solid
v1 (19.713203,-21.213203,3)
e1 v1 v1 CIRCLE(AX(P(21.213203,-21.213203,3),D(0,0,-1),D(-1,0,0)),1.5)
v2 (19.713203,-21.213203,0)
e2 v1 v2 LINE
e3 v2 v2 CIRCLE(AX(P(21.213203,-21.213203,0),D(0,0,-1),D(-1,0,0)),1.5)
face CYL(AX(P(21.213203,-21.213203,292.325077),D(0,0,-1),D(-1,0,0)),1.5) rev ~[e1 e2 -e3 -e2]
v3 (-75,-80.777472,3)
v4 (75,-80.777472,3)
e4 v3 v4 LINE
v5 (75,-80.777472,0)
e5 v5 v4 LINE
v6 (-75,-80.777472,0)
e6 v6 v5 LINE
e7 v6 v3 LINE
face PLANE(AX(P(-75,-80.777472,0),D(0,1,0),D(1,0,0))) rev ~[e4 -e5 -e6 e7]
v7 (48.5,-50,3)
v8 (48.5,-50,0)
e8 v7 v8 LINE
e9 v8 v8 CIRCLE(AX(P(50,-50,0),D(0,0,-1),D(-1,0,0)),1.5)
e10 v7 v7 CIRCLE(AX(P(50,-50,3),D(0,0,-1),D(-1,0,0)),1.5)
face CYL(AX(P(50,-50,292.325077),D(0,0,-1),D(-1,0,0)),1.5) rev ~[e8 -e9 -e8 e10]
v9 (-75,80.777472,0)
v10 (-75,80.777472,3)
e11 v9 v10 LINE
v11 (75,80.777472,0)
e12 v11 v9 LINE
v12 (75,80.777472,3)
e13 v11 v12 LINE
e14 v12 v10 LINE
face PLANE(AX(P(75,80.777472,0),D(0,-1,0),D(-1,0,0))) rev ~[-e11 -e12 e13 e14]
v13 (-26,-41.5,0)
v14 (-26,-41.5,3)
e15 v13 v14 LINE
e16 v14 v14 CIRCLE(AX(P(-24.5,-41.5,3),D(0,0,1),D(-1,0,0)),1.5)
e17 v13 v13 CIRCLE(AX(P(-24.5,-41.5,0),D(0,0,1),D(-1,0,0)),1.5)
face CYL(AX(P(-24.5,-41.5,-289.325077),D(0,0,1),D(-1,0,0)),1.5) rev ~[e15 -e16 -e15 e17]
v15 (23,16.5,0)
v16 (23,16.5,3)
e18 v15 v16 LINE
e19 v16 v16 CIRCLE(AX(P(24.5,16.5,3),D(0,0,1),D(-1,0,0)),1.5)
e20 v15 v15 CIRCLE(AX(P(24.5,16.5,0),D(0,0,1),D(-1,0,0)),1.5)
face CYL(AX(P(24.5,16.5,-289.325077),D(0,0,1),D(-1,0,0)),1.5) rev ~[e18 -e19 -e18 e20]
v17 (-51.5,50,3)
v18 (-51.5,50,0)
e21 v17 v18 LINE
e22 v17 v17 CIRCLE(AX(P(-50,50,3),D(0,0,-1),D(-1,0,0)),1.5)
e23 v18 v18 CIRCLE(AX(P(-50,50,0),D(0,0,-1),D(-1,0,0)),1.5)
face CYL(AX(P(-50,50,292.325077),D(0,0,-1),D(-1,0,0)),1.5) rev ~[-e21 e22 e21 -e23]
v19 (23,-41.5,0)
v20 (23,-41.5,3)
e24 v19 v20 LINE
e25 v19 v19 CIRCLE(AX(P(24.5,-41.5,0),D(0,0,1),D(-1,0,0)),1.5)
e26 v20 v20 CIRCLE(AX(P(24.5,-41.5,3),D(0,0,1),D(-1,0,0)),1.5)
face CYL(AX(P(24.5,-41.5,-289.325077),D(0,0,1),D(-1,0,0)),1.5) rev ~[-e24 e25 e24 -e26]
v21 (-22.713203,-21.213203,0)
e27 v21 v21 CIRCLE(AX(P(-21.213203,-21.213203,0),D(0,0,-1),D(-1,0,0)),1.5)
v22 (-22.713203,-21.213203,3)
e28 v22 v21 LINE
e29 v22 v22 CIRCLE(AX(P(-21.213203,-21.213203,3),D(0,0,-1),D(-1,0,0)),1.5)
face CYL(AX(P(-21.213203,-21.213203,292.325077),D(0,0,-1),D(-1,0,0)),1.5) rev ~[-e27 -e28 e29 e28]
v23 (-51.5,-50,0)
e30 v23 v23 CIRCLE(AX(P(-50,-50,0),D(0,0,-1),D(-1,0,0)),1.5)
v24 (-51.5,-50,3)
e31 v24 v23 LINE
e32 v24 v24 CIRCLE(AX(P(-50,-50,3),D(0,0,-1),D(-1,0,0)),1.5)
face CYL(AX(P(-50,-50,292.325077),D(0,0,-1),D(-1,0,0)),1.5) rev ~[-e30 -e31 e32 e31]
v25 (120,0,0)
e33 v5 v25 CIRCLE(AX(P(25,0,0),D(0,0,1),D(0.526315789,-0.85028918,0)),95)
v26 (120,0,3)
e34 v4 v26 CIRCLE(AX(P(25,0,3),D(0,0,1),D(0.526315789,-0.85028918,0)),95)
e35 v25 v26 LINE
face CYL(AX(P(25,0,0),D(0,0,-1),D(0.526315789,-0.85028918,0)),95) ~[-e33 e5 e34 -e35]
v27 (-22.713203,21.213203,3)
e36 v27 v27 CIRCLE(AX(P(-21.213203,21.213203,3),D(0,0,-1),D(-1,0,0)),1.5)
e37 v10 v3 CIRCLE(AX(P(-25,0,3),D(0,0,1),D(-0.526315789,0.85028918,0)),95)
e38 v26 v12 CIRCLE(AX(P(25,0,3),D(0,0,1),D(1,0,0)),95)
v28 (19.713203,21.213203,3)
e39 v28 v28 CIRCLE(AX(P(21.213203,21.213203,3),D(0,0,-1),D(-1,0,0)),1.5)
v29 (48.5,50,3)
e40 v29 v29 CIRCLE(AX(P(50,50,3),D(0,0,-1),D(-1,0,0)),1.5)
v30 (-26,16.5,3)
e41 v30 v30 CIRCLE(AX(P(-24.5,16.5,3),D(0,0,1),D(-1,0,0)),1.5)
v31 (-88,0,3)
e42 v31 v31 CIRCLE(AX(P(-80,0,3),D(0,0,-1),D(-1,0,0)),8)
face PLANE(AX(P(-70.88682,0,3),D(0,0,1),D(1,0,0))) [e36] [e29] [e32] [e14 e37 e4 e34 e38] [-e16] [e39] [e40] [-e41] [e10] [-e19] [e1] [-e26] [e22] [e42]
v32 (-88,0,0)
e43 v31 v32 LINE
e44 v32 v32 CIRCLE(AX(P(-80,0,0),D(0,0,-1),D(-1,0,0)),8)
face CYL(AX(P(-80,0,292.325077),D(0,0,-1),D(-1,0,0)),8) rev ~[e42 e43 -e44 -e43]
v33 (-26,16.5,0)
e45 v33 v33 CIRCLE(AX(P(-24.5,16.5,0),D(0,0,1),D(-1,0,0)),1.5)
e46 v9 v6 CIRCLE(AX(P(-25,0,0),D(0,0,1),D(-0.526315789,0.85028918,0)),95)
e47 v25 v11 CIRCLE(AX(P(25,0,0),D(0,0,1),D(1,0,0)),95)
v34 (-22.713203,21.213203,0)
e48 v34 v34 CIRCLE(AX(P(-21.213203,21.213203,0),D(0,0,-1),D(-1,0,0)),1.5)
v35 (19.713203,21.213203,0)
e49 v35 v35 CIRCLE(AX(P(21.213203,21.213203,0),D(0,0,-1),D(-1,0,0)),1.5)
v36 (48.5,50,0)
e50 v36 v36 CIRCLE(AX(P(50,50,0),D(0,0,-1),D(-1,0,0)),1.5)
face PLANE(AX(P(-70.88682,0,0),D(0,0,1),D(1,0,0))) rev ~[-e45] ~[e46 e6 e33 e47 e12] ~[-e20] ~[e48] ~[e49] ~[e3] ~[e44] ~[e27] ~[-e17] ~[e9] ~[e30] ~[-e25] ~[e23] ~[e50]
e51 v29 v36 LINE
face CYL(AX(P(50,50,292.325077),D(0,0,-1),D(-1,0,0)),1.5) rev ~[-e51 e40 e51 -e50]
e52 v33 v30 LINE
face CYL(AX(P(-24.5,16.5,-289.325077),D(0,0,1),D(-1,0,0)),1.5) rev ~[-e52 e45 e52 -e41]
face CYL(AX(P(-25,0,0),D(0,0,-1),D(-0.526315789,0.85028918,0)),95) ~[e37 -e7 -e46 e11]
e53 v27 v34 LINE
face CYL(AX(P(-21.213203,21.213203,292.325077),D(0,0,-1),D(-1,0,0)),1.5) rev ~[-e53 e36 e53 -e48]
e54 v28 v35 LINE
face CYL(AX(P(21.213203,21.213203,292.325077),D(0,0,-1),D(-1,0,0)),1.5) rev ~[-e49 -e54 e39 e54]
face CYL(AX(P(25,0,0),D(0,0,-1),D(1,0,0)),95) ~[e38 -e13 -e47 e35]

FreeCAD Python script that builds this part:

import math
import FreeCAD as App
import Part
import Sketcher
Q = App.Units.Quantity

doc = App.newDocument("Part")
body = doc.addObject("PartDesign::Body", "Body")

# Sketch on XY plane
sketch1 = body.newObject("Sketcher::SketchObject", "Sketch")
sketch1.AttachmentSupport = (doc.getObject("XY_Plane"), [""])
sketch1.MapMode = "FlatFace"
sketch1.addGeometry([
    Part.ArcOfCircle(Part.Circle(App.Vector(-25, 0, 0), App.Vector(0, 0, 1), 95), math.radians(122), math.radians(238)),  # 0
    Part.LineSegment(App.Vector(-75, -81, 0), App.Vector(75, -81, 0)),  # 1
    Part.ArcOfCircle(Part.Circle(App.Vector(25, 0, 0), App.Vector(0, 0, 1), 95), math.radians(-58), math.radians(0)),  # 2
    Part.ArcOfCircle(Part.Circle(App.Vector(25, 0, 0), App.Vector(0, 0, 1), 95), math.radians(0), math.radians(58)),  # 3
    Part.LineSegment(App.Vector(75, 81, 0), App.Vector(-75, 81, 0)),  # 4
], False)
sketch1.addConstraint([
    Sketcher.Constraint("Coincident", 0, 2, 1, 1),
    Sketcher.Constraint("Coincident", 1, 2, 2, 1),
    Sketcher.Constraint("Tangent", 2, 2, 3, 1),
    Sketcher.Constraint("Coincident", 3, 2, 4, 1),
    Sketcher.Constraint("Coincident", 4, 2, 0, 1),
    Sketcher.Constraint("Horizontal", 1),
    Sketcher.Constraint("Horizontal", 4),
    Sketcher.Constraint("Equal", 0, 2),
    Sketcher.Constraint("Equal", 2, 3),
    Sketcher.Constraint("Symmetric", 0, 3, 2, 3, -1, 1),
    Sketcher.Constraint("Symmetric", 1, 2, 3, 2, -1),
    Sketcher.Constraint("PointOnObject", 2, 2, -1),
    Sketcher.Constraint("Radius", 0, Q("95 mm")),
    Sketcher.Constraint("DistanceX", 1, 1, 1, 2, Q("150 mm")),
    Sketcher.Constraint("DistanceX", 0, 3, -1, 1, Q("25 mm")),
])
pad1 = body.newObject("PartDesign::Pad", "Pad")
pad1.Profile = sketch1
pad1.Length = 3

# Sketch on XY plane
sketch2 = body.newObject("Sketcher::SketchObject", "Sketch001")
sketch2.AttachmentSupport = (doc.getObject("XY_Plane"), [""])
sketch2.MapMode = "FlatFace"
sketch2.AttachmentOffset = App.Placement(App.Vector(0, 0, 3), App.Rotation())
sketch2.addGeometry([
    Part.Circle(App.Vector(-50, 50, 0), App.Vector(0, 0, 1), 1.5),
    Part.Circle(App.Vector(50, 50, 0), App.Vector(0, 0, 1), 1.5),
    Part.Circle(App.Vector(50, -50, 0), App.Vector(0, 0, 1), 1.5),
    Part.Circle(App.Vector(-50, -50, 0), App.Vector(0, 0, 1), 1.5),
], False)
sketch2.addConstraint([
    Sketcher.Constraint("Equal", 0, 1),
    Sketcher.Constraint("Equal", 1, 2),
    Sketcher.Constraint("Equal", 2, 3),
    Sketcher.Constraint("Symmetric", 0, 3, 2, 3, -1, 1),
    Sketcher.Constraint("Symmetric", 1, 3, 3, 3, -1, 1),
    Sketcher.Constraint("Symmetric", 0, 3, 1, 3, -2),
    Sketcher.Constraint("Diameter", 0, Q("3 mm")),
    Sketcher.Constraint("DistanceX", 0, 3, -1, 1, Q("50 mm")),
    Sketcher.Constraint("DistanceY", -1, 1, 0, 3, Q("50 mm")),
])
doc.recompute()
hole = body.newObject("PartDesign::Hole", "Hole")
hole.Profile = sketch2
hole.ThreadType = "None"
hole.Diameter = 3
hole.DepthType = "ThroughAll"

# Sketch on XY plane
sketch3 = body.newObject("Sketcher::SketchObject", "Sketch002")
sketch3.AttachmentSupport = (doc.getObject("XY_Plane"), [""])
sketch3.MapMode = "FlatFace"
sketch3.AttachmentOffset = App.Placement(App.Vector(0, 0, 3), App.Rotation())
sketch3.addGeometry([
    Part.Circle(App.Vector(-21.2, 21.2, 0), App.Vector(0, 0, 1), 1.5),
    Part.Circle(App.Vector(21.2, 21.2, 0), App.Vector(0, 0, 1), 1.5),
    Part.Circle(App.Vector(21.2, -21.2, 0), App.Vector(0, 0, 1), 1.5),
    Part.Circle(App.Vector(-21.2, -21.2, 0), App.Vector(0, 0, 1), 1.5),
], False)
sketch3.addConstraint([
    Sketcher.Constraint("Equal", 0, 1),
    Sketcher.Constraint("Equal", 1, 2),
    Sketcher.Constraint("Equal", 2, 3),
    Sketcher.Constraint("Symmetric", 0, 3, 2, 3, -1, 1),
    Sketcher.Constraint("Symmetric", 1, 3, 3, 3, -1, 1),
    Sketcher.Constraint("Symmetric", 0, 3, 1, 3, -2),
    Sketcher.Constraint("Diameter", 0, Q("3 mm")),
    Sketcher.Constraint("DistanceX", 0, 3, -1, 1, Q("21.213203 mm")),
    Sketcher.Constraint("DistanceY", -1, 1, 0, 3, Q("21.213203 mm")),
])
doc.recompute()
hole2 = body.newObject("PartDesign::Hole", "Hole001")
hole2.Profile = sketch3
hole2.ThreadType = "None"
hole2.Diameter = 3
hole2.DepthType = "ThroughAll"

# Sketch on XY plane
sketch4 = body.newObject("Sketcher::SketchObject", "Sketch003")
sketch4.AttachmentSupport = (doc.getObject("XY_Plane"), [""])
sketch4.MapMode = "FlatFace"
sketch4.addGeometry([
    Part.Circle(App.Vector(-24.5, -41.5, 0), App.Vector(0, 0, 1), 1.5),
    Part.Circle(App.Vector(24.5, -41.5, 0), App.Vector(0, 0, 1), 1.5),
    Part.Circle(App.Vector(24.5, 16.5, 0), App.Vector(0, 0, 1), 1.5),
    Part.Circle(App.Vector(-24.5, 16.5, 0), App.Vector(0, 0, 1), 1.5),
], False)
sketch4.addConstraint([
    Sketcher.Constraint("Equal", 0, 1),
    Sketcher.Constraint("Equal", 1, 2),
    Sketcher.Constraint("Equal", 2, 3),
    Sketcher.Constraint("Symmetric", 0, 3, 1, 3, -2),
    Sketcher.Constraint("Symmetric", 2, 3, 3, 3, -2),
    Sketcher.Constraint("Vertical", 1, 3, 2, 3),
    Sketcher.Constraint("Diameter", 0, Q("3 mm")),
    Sketcher.Constraint("DistanceX", 0, 3, 1, 3, Q("49 mm")),
    Sketcher.Constraint("DistanceY", 1, 3, 2, 3, Q("58 mm")),
    Sketcher.Constraint("DistanceY", 0, 3, -1, 1, Q("41.5 mm")),
])
doc.recompute()
hole3 = body.newObject("PartDesign::Hole", "Hole002")
hole3.Profile = sketch4
hole3.ThreadType = "None"
hole3.Diameter = 3
hole3.DepthType = "ThroughAll"
hole3.Reversed = True

# Sketch on XY plane
sketch5 = body.newObject("Sketcher::SketchObject", "Sketch004")
sketch5.AttachmentSupport = (doc.getObject("XY_Plane"), [""])
sketch5.MapMode = "FlatFace"
sketch5.AttachmentOffset = App.Placement(App.Vector(0, 0, 3), App.Rotation())
sketch5.addGeometry(Part.Circle(App.Vector(-80, 0, 0), App.Vector(0, 0, 1), 8), False)
sketch5.addConstraint([
    Sketcher.Constraint("PointOnObject", 0, 3, -1),
    Sketcher.Constraint("Diameter", 0, Q("16 mm")),
    Sketcher.Constraint("DistanceX", 0, 3, -1, 1, Q("80 mm")),
])
doc.recompute()
hole4 = body.newObject("PartDesign::Hole", "Hole003")
hole4.Profile = sketch5
hole4.ThreadType = "None"
hole4.Diameter = 16
hole4.DepthType = "ThroughAll"

doc.recompute()
